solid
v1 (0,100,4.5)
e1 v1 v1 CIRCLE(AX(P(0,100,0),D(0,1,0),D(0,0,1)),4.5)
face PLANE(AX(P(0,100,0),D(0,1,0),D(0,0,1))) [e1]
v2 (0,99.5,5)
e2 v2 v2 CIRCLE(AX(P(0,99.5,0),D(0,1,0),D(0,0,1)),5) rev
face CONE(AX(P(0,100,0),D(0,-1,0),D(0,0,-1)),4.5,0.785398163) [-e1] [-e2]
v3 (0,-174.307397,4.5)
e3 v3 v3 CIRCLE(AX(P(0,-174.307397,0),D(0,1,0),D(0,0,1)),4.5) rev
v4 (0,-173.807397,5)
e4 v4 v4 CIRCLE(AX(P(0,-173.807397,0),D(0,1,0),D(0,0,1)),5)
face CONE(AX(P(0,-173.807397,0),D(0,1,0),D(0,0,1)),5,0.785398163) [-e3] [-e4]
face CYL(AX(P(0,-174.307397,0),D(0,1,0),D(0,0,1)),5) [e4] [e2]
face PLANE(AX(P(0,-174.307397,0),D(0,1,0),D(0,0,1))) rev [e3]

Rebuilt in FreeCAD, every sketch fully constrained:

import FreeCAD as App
import Part
import Sketcher

V = App.Vector
Q = App.Units.Quantity


def edges_at(feature, points):
    """Names of the edges that pass closest to the given points."""
    edges = feature.Shape.Edges
    near = lambda p: min(range(len(edges)), key=lambda i: edges[i].distToShape(Part.Vertex(*p))[0])
    return sorted({f"Edge{near(p) + 1}" for p in points})

doc = App.newDocument("Part")
params = doc.addObject("Spreadsheet::Sheet", "Params")
for row, (alias, value) in enumerate([
    ("sketch1_diameter", "10 mm"),
    ("pad1_length", "100 mm"),
    ("pad1_length2", "174.307397 mm"),
    ("chamfer_size", "0.5 mm"),
], start=1):
    params.set(f"A{row}", alias)
    params.set(f"B{row}", "=" + value)
    params.setAlias(f"B{row}", alias)

body = doc.addObject("PartDesign::Body", "Body")

# Sketch on XZ plane
sketch1 = body.newObject("Sketcher::SketchObject", "Sketch")
sketch1.AttachmentSupport = (doc.getObject("XZ_Plane"), [""])
sketch1.MapMode = "FlatFace"
sketch1.addGeometry(Part.Circle(V(0, 0, 0), V(0, 0, 1), 5), False)
sketch1.addConstraint([
    Sketcher.Constraint("Coincident", 0, 3, -1, 1),
    Sketcher.Constraint("Diameter", 0, Q("10 mm")),
])
sketch1.setExpression("Constraints[1]", "Params.sketch1_diameter")
pad1 = body.newObject("PartDesign::Pad", "Pad")
pad1.Profile = sketch1
pad1.Type = "TwoLengths"
pad1.setExpression("Length", "Params.pad1_length")
pad1.setExpression("Length2", "Params.pad1_length2")
pad1.Reversed = True
doc.recompute()

chamfer = body.newObject("PartDesign::Chamfer", "Chamfer")
chamfer.Base = (pad1, edges_at(pad1, [(-5, -174.307, 0), (-5, 100, 0)]))
chamfer.setExpression("Size", "Params.chamfer_size")

doc.recompute()
